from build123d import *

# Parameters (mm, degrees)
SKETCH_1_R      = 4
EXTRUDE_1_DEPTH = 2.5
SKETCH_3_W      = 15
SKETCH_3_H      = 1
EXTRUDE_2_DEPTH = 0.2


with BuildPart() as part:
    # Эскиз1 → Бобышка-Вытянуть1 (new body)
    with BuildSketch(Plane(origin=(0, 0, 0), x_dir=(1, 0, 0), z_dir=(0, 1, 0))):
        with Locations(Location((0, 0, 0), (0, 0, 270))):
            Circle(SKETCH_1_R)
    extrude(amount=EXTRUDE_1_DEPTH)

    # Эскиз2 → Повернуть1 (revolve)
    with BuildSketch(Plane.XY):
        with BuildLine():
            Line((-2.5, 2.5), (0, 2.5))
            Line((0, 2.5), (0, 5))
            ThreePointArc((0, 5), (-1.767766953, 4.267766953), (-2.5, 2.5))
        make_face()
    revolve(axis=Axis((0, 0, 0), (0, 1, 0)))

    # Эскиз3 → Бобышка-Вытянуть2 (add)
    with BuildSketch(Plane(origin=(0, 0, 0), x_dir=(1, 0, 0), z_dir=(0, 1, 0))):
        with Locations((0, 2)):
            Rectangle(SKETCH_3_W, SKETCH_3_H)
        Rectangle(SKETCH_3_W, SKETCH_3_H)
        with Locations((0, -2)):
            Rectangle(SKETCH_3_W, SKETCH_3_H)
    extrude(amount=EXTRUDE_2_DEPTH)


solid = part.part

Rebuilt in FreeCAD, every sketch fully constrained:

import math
import FreeCAD as App
import Part
import Sketcher
Q = App.Units.Quantity


def add_polygon(sketch, points):
    """Adds a closed chain of lines whose ends are joined by coincident constraints."""
    first, n = sketch.GeometryCount, len(points)
    for a, b in zip(points, points[1:] + points[:1]):
        sketch.addGeometry(Part.LineSegment(App.Vector(*a, 0), App.Vector(*b, 0)), False)
    for i in range(n):
        sketch.addConstraint(Sketcher.Constraint("Coincident", first + i, 2, first + (i + 1) % n, 1))

doc = App.newDocument("Part")
params = doc.addObject("Spreadsheet::Sheet", "Params")
for row, (alias, value) in enumerate([
    ("sketch1_diameter", "8 mm"),
    ("pad1_length", "2.5 mm"),
    ("sketch2_radius", "2.5 mm"),
    ("revolution_angle", "360 deg"),
    ("sketch3_width", "15 mm"),
    ("sketch3_height", "1 mm"),
    ("pad2_length", "0.2 mm"),
], start=1):
    params.set(f"A{row}", alias)
    params.set(f"B{row}", "=" + value)
    params.setAlias(f"B{row}", alias)

body = doc.addObject("PartDesign::Body", "Body")

# Sketch on XZ plane
sketch1 = doc.addObject("Sketcher::SketchObject", "Sketch")
body.addObject(sketch1)
sketch1.AttachmentSupport = (doc.XZ_Plane, [""])
sketch1.MapMode = "FlatFace"
sketch1.addGeometry(Part.Circle(App.Vector(0, 0, 0), App.Vector(0, 0, 1), 4), False)
sketch1.addConstraint(Sketcher.Constraint("Coincident", 0, 3, -1, 1))
sketch1.addConstraint(Sketcher.Constraint("Diameter", 0, Q("8 mm")))
sketch1.setExpression("Constraints[1]", "Params.sketch1_diameter")
pad1 = doc.addObject("PartDesign::Pad", "Pad")
body.addObject(pad1)
pad1.Profile = sketch1
pad1.setExpression("Length", "Params.pad1_length")
pad1.Reversed = True

# Sketch on XY plane
sketch2 = doc.addObject("Sketcher::SketchObject", "Sketch001")
body.addObject(sketch2)
sketch2.AttachmentSupport = (doc.XY_Plane, [""])
sketch2.MapMode = "FlatFace"
sketch2.addGeometry(Part.LineSegment(App.Vector(-2.5, 2.5, 0), App.Vector(0, 2.5, 0)), False)
sketch2.addGeometry(Part.LineSegment(App.Vector(0, 2.5, 0), App.Vector(0, 5, 0)), False)
sketch2.addGeometry(Part.ArcOfCircle(Part.Circle(App.Vector(0, 2.5, 0), App.Vector(0, 0, 1), 2.5), math.radians(90), math.radians(180)), False)
sketch2.addConstraint(Sketcher.Constraint("Coincident", 0, 2, 1, 1))
sketch2.addConstraint(Sketcher.Constraint("Coincident", 1, 2, 2, 1))
sketch2.addConstraint(Sketcher.Constraint("Coincident", 2, 2, 0, 1))
sketch2.addConstraint(Sketcher.Constraint("Horizontal", 0))
sketch2.addConstraint(Sketcher.Constraint("Vertical", 1))
sketch2.addConstraint(Sketcher.Constraint("Coincident", 0, 2, 2, 3))
sketch2.addConstraint(Sketcher.Constraint("PointOnObject", 2, 3, -2))
sketch2.addConstraint(Sketcher.Constraint("Radius", 2, Q("2.5 mm")))
sketch2.addConstraint(Sketcher.Constraint("DistanceY", -1, 1, 1, 2, Q("5 mm")))
sketch2.setExpression("Constraints[7]", "Params.sketch2_radius")
revolution = doc.addObject("PartDesign::Revolution", "Revolution")
body.addObject(revolution)
revolution.Profile = sketch2
revolution.ReferenceAxis = (sketch2, ["V_Axis"])
revolution.setExpression("Angle", "Params.revolution_angle")

# Sketch on XZ plane
sketch3 = doc.addObject("Sketcher::SketchObject", "Sketch002")
body.addObject(sketch3)
sketch3.AttachmentSupport = (doc.XZ_Plane, [""])
sketch3.MapMode = "FlatFace"
add_polygon(sketch3, [(-7.5, -2.5), (-7.5, -1.5), (7.5, -1.5), (7.5, -2.5)])  # lines 0-3
add_polygon(sketch3, [(-7.5, -0.5), (-7.5, 0.5), (7.5, 0.5), (7.5, -0.5)])  # lines 4-7
add_polygon(sketch3, [(-7.5, 1.5), (-7.5, 2.5), (7.5, 2.5), (7.5, 1.5)])  # lines 8-11
sketch3.addConstraint(Sketcher.Constraint("Vertical", 0))
sketch3.addConstraint(Sketcher.Constraint("Horizontal", 1))
sketch3.addConstraint(Sketcher.Constraint("Vertical", 2))
sketch3.addConstraint(Sketcher.Constraint("Horizontal", 3))
sketch3.addConstraint(Sketcher.Constraint("Vertical", 4))
sketch3.addConstraint(Sketcher.Constraint("Horizontal", 5))
sketch3.addConstraint(Sketcher.Constraint("Vertical", 6))
sketch3.addConstraint(Sketcher.Constraint("Horizontal", 7))
sketch3.addConstraint(Sketcher.Constraint("Vertical", 8))
sketch3.addConstraint(Sketcher.Constraint("Horizontal", 9))
sketch3.addConstraint(Sketcher.Constraint("Vertical", 10))
sketch3.addConstraint(Sketcher.Constraint("Horizontal", 11))
sketch3.addConstraint(Sketcher.Constraint("Symmetric", 4, 2, 6, 2, -1, 1))
sketch3.addConstraint(Sketcher.Constraint("Symmetric", 2, 2, 8, 2, -1, 1))
sketch3.addConstraint(Sketcher.Constraint("Symmetric", 0, 2, 10, 2, -1, 1))
sketch3.addConstraint(Sketcher.Constraint("Vertical", 3, 2, 4, 2))
sketch3.addConstraint(Sketcher.Constraint("Vertical", 2, 2, 5, 2))
sketch3.addConstraint(Sketcher.Constraint("Equal", 2, 4))
sketch3.addConstraint(Sketcher.Constraint("DistanceX", 1, 1, 1, 2, Q("15 mm")))
sketch3.addConstraint(Sketcher.Constraint("DistanceY", 0, 1, 0, 2, Q("1 mm")))
sketch3.addConstraint(Sketcher.Constraint("DistanceY", 0, 2, 4, 2, Q("2 mm")))
sketch3.setExpression("Constraints[30]", "Params.sketch3_width")
sketch3.setExpression("Constraints[31]", "Params.sketch3_height")
pad2 = doc.addObject("PartDesign::Pad", "Pad001")
body.addObject(pad2)
pad2.Profile = sketch3
pad2.setExpression("Length", "Params.pad2_length")
pad2.Reversed = True

doc.recompute()
